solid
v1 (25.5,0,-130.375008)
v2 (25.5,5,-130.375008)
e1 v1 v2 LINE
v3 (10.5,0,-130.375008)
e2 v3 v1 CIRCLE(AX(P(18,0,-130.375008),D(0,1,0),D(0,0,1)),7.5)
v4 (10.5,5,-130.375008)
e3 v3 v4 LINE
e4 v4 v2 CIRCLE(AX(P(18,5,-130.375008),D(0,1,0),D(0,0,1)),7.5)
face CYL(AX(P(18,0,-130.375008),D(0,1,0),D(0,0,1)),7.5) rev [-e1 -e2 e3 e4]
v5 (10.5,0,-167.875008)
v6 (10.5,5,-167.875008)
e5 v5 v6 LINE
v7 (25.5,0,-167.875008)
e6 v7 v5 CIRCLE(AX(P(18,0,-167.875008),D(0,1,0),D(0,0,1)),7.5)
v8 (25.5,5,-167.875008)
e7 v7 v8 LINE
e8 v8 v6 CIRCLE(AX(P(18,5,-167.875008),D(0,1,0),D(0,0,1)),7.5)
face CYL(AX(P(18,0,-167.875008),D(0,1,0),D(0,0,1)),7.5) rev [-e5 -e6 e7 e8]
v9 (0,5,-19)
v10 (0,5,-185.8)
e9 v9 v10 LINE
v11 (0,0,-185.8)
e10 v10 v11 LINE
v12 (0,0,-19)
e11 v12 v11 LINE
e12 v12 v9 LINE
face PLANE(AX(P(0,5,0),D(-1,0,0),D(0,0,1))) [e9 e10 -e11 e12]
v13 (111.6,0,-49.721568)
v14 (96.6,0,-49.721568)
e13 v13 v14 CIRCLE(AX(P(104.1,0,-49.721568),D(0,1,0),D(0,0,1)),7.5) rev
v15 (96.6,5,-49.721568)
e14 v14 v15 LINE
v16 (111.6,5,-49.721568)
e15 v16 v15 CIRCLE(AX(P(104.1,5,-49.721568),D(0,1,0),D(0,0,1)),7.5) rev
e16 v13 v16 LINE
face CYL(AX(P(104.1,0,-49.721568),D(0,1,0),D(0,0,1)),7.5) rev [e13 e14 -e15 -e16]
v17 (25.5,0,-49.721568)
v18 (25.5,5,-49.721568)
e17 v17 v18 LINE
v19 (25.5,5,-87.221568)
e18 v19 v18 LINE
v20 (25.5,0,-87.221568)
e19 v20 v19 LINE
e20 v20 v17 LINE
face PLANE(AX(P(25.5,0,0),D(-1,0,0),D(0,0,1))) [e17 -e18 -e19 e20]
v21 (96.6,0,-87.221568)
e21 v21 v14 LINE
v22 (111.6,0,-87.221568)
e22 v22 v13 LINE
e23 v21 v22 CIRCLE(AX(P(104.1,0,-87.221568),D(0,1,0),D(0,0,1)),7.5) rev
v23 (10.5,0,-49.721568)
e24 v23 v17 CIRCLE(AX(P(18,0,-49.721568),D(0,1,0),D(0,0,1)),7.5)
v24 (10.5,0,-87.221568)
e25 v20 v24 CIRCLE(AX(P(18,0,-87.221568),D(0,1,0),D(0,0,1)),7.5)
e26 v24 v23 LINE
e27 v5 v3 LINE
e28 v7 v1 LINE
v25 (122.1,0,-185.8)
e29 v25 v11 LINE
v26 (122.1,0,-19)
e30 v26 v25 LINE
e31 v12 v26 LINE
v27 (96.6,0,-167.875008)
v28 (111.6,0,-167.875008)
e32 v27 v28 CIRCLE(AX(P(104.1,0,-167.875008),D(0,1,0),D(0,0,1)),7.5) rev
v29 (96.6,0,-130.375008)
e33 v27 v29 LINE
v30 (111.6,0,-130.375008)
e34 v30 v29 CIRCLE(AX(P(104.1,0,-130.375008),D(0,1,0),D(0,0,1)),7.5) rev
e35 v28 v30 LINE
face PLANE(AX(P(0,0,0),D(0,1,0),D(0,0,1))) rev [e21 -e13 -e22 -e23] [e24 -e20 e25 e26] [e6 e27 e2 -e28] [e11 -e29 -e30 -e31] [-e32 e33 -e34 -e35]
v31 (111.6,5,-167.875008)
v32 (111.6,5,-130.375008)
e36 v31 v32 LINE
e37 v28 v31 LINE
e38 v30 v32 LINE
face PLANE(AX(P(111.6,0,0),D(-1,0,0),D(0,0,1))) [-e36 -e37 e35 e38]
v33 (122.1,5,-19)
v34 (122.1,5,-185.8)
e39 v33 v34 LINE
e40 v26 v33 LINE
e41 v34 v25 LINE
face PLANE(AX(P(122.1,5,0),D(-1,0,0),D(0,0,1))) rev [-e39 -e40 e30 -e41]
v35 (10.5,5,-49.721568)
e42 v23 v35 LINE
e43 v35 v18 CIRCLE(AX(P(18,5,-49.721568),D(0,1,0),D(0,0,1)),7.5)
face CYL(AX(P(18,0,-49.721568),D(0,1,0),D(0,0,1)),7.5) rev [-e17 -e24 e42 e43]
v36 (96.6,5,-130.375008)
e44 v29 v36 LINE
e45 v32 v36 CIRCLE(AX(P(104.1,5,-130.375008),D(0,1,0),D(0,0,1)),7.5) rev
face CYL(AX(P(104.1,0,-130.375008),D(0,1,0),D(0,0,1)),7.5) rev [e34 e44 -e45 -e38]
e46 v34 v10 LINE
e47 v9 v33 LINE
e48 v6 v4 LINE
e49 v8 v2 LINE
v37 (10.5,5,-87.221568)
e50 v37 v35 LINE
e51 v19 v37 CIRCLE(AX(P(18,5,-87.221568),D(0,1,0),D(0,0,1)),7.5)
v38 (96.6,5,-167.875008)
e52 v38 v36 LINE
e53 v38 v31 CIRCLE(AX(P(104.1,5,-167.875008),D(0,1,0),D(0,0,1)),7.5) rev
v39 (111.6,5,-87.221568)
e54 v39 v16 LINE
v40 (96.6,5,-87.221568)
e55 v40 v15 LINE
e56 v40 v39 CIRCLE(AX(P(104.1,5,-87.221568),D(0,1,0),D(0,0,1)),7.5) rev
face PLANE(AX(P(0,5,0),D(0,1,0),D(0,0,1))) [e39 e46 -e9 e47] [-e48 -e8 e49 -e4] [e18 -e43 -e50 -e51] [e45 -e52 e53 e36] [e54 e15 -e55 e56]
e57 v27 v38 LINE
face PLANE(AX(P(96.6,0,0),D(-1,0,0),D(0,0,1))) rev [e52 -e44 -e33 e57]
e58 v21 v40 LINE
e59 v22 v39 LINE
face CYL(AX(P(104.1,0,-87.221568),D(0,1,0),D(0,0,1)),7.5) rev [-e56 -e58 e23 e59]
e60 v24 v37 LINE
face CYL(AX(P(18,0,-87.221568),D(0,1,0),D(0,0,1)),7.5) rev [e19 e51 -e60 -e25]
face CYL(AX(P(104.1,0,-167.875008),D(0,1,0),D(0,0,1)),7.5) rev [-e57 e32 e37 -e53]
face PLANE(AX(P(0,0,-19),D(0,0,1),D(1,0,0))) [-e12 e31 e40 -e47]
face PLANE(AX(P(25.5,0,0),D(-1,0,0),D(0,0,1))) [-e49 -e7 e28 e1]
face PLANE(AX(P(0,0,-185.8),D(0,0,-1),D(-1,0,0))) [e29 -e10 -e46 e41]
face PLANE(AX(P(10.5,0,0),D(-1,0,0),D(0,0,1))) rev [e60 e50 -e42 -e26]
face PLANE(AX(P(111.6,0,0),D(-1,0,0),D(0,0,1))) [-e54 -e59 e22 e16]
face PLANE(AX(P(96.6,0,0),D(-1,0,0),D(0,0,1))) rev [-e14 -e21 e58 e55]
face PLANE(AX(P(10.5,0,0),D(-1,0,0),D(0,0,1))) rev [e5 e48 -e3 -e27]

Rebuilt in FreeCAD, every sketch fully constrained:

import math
import FreeCAD as App
import Part
import Sketcher

V = App.Vector
Q = App.Units.Quantity


def add_polygon(sketch, points):
    """Adds a closed chain of lines whose ends are joined by coincident constraints."""
    first, n = sketch.GeometryCount, len(points)
    for a, b in zip(points, points[1:] + points[:1]):
        sketch.addGeometry(Part.LineSegment(App.Vector(*a, 0), App.Vector(*b, 0)), False)
    for i in range(n):
        sketch.addConstraint(Sketcher.Constraint("Coincident", first + i, 2, first + (i + 1) % n, 1))

doc = App.newDocument("Part")
body = doc.addObject("PartDesign::Body", "Body")

# Sketch on XZ plane
sketch1 = doc.addObject("Sketcher::SketchObject", "Sketch")
body.addObject(sketch1)
sketch1.AttachmentSupport = (doc.XZ_Plane, [""])
sketch1.MapMode = "FlatFace"
add_polygon(sketch1, [(0, -197.8), (0, 0), (122.1, 0), (122.1, -197.8)])  # lines 0-3
sketch1.addConstraint(Sketcher.Constraint("Vertical", 0))
sketch1.addConstraint(Sketcher.Constraint("Horizontal", 1))
sketch1.addConstraint(Sketcher.Constraint("Vertical", 2))
sketch1.addConstraint(Sketcher.Constraint("Horizontal", 3))
sketch1.addConstraint(Sketcher.Constraint("Coincident", 0, 2, -1, 1))
sketch1.addConstraint(Sketcher.Constraint("DistanceX", 1, 1, 1, 2, Q("122.1 mm")))
sketch1.addConstraint(Sketcher.Constraint("DistanceY", 0, 1, 0, 2, Q("197.8 mm")))
pad1 = doc.addObject("PartDesign::Pad", "Pad")
body.addObject(pad1)
pad1.Profile = sketch1
pad1.Length = 5
pad1.Reversed = True

# Sketch on XZ plane
sketch2 = doc.addObject("Sketcher::SketchObject", "Sketch001")
body.addObject(sketch2)
sketch2.AttachmentSupport = (doc.XZ_Plane, [""])
sketch2.MapMode = "FlatFace"
sketch2.AttachmentOffset = App.Placement(V(0, 0, -5), App.Rotation())
sketch2.addGeometry(Part.LineSegment(V(10.5, -167.875008, 0), V(10.5, -130.375008, 0)), False)
sketch2.addGeometry(Part.ArcOfCircle(Part.Circle(V(18, -130.375008, 0), V(0, 0, 1), 7.5), math.radians(0), math.radians(180)), False)
sketch2.addGeometry(Part.LineSegment(V(25.5, -130.375008, 0), V(25.5, -167.875008, 0)), False)
sketch2.addGeometry(Part.ArcOfCircle(Part.Circle(V(18, -167.875008, 0), V(0, 0, 1), 7.5), math.radians(180), math.radians(360)), False)
sketch2.addGeometry(Part.ArcOfCircle(Part.Circle(V(104.1, -130.375008, 0), V(0, 0, 1), 7.5), math.radians(0), math.radians(180)), False)
sketch2.addGeometry(Part.LineSegment(V(111.6, -130.375008, 0), V(111.6, -167.875008, 0)), False)
sketch2.addGeometry(Part.ArcOfCircle(Part.Circle(V(104.1, -167.875008, 0), V(0, 0, 1), 7.5), math.radians(180), math.radians(360)), False)
sketch2.addGeometry(Part.LineSegment(V(96.6, -167.875008, 0), V(96.6, -130.375008, 0)), False)
sketch2.addGeometry(Part.ArcOfCircle(Part.Circle(V(104.1, -49.721568, 0), V(0, 0, 1), 7.5), math.radians(0), math.radians(180)), False)
sketch2.addGeometry(Part.LineSegment(V(111.6, -49.721568, 0), V(111.6, -87.221568, 0)), False)
sketch2.addGeometry(Part.ArcOfCircle(Part.Circle(V(104.1, -87.221568, 0), V(0, 0, 1), 7.5), math.radians(180), math.radians(360)), False)
sketch2.addGeometry(Part.LineSegment(V(96.6, -87.221568, 0), V(96.6, -49.721568, 0)), False)
sketch2.addGeometry(Part.LineSegment(V(10.5, -87.221568, 0), V(10.5, -49.721568, 0)), False)
sketch2.addGeometry(Part.ArcOfCircle(Part.Circle(V(18, -49.721568, 0), V(0, 0, 1), 7.5), math.radians(0), math.radians(180)), False)
sketch2.addGeometry(Part.LineSegment(V(25.5, -49.721568, 0), V(25.5, -87.221568, 0)), False)
sketch2.addGeometry(Part.ArcOfCircle(Part.Circle(V(18, -87.221568, 0), V(0, 0, 1), 7.5), math.radians(180), math.radians(360)), False)
sketch2.addConstraint(Sketcher.Constraint("Tangent", 0, 2, 1, 2))
sketch2.addConstraint(Sketcher.Constraint("Tangent", 1, 1, 2, 1))
sketch2.addConstraint(Sketcher.Constraint("Tangent", 2, 2, 3, 2))
sketch2.addConstraint(Sketcher.Constraint("Tangent", 3, 1, 0, 1))
sketch2.addConstraint(Sketcher.Constraint("Tangent", 4, 1, 5, 1))
sketch2.addConstraint(Sketcher.Constraint("Tangent", 5, 2, 6, 2))
sketch2.addConstraint(Sketcher.Constraint("Tangent", 6, 1, 7, 1))
sketch2.addConstraint(Sketcher.Constraint("Tangent", 7, 2, 4, 2))
sketch2.addConstraint(Sketcher.Constraint("Tangent", 8, 1, 9, 1))
sketch2.addConstraint(Sketcher.Constraint("Tangent", 9, 2, 10, 2))
sketch2.addConstraint(Sketcher.Constraint("Tangent", 10, 1, 11, 1))
sketch2.addConstraint(Sketcher.Constraint("Tangent", 11, 2, 8, 2))
sketch2.addConstraint(Sketcher.Constraint("Tangent", 12, 2, 13, 2))
sketch2.addConstraint(Sketcher.Constraint("Tangent", 13, 1, 14, 1))
sketch2.addConstraint(Sketcher.Constraint("Tangent", 14, 2, 15, 2))
sketch2.addConstraint(Sketcher.Constraint("Tangent", 15, 1, 12, 1))
sketch2.addConstraint(Sketcher.Constraint("Vertical", 0))
sketch2.addConstraint(Sketcher.Constraint("Vertical", 2))
sketch2.addConstraint(Sketcher.Constraint("Vertical", 5))
sketch2.addConstraint(Sketcher.Constraint("Vertical", 7))
sketch2.addConstraint(Sketcher.Constraint("Vertical", 9))
sketch2.addConstraint(Sketcher.Constraint("Vertical", 11))
sketch2.addConstraint(Sketcher.Constraint("Vertical", 12))
sketch2.addConstraint(Sketcher.Constraint("Vertical", 14))
sketch2.addConstraint(Sketcher.Constraint("Equal", 3, 4))
sketch2.addConstraint(Sketcher.Constraint("Equal", 6, 8))
sketch2.addConstraint(Sketcher.Constraint("Equal", 10, 13))
sketch2.addConstraint(Sketcher.Constraint("Horizontal", 1, 3, 4, 3))
sketch2.addConstraint(Sketcher.Constraint("Horizontal", 3, 3, 6, 3))
sketch2.addConstraint(Sketcher.Constraint("Horizontal", 8, 3, 13, 3))
sketch2.addConstraint(Sketcher.Constraint("Horizontal", 10, 3, 15, 3))
sketch2.addConstraint(Sketcher.Constraint("Vertical", 6, 3, 8, 3))
sketch2.addConstraint(Sketcher.Constraint("Vertical", 3, 3, 13, 3))
sketch2.addConstraint(Sketcher.Constraint("Equal", 7, 9))
sketch2.addConstraint(Sketcher.Constraint("Radius", 1, Q("7.5 mm")))
sketch2.addConstraint(Sketcher.Constraint("DistanceY", 0, 1, 0, 2, Q("37.5 mm")))
sketch2.addConstraint(Sketcher.Constraint("DistanceX", -1, 1, 1, 3, Q("18 mm")))
sketch2.addConstraint(Sketcher.Constraint("DistanceX", -1, 1, 4, 3, Q("104.1 mm")))
sketch2.addConstraint(Sketcher.Constraint("DistanceY", 8, 3, -1, 1, Q("49.721568 mm")))
sketch2.addConstraint(Sketcher.Constraint("DistanceY", 4, 3, 8, 3, Q("80.65344 mm")))
pocket1 = doc.addObject("PartDesign::Pocket", "Pocket")
body.addObject(pocket1)
pocket1.Profile = sketch2
pocket1.Length = 5
pocket1.Reversed = True

# Sketch on XY plane
sketch3 = doc.addObject("Sketcher::SketchObject", "Sketch002")
body.addObject(sketch3)
sketch3.AttachmentSupport = (doc.XY_Plane, [""])
sketch3.MapMode = "FlatFace"
sketch3.AttachmentOffset = App.Placement(V(0, 0, -197.8), App.Rotation())
add_polygon(sketch3, [(135.054576, 26.31456), (135.054576, -41.520135), (-41.638024, -41.520135), (-41.638024, 26.31456)])  # lines 0-3
sketch3.addConstraint(Sketcher.Constraint("Vertical", 0))
sketch3.addConstraint(Sketcher.Constraint("Horizontal", 1))
sketch3.addConstraint(Sketcher.Constraint("Vertical", 2))
sketch3.addConstraint(Sketcher.Constraint("Horizontal", 3))
sketch3.addConstraint(Sketcher.Constraint("DistanceX", 1, 2, 1, 1, Q("176.6926 mm")))
sketch3.addConstraint(Sketcher.Constraint("DistanceY", 0, 2, 0, 1, Q("67.834695 mm")))
sketch3.addConstraint(Sketcher.Constraint("DistanceY", -1, 1, 2, 2, Q("26.31456 mm")))
sketch3.addConstraint(Sketcher.Constraint("DistanceX", -1, 1, 0, 2, Q("135.054576 mm")))
pocket2 = doc.addObject("PartDesign::Pocket", "Pocket001")
body.addObject(pocket2)
pocket2.Profile = sketch3
pocket2.Length = 12
pocket2.Reversed = True

# Sketch on XY plane
sketch4 = doc.addObject("Sketcher::SketchObject", "Sketch003")
body.addObject(sketch4)
sketch4.AttachmentSupport = (doc.XY_Plane, [""])
sketch4.MapMode = "FlatFace"
add_polygon(sketch4, [(-6.195125, 32.859868), (-6.195125, -30.99889), (142.30823, -30.99889), (142.30823, 32.859868)])  # lines 0-3
sketch4.addConstraint(Sketcher.Constraint("Vertical", 0))
sketch4.addConstraint(Sketcher.Constraint("Horizontal", 1))
sketch4.addConstraint(Sketcher.Constraint("Vertical", 2))
sketch4.addConstraint(Sketcher.Constraint("Horizontal", 3))
sketch4.addConstraint(Sketcher.Constraint("DistanceX", 1, 1, 1, 2, Q("148.503355 mm")))
sketch4.addConstraint(Sketcher.Constraint("DistanceY", 0, 2, 0, 1, Q("63.858757 mm")))
sketch4.addConstraint(Sketcher.Constraint("DistanceY", 0, 2, -1, 1, Q("30.99889 mm")))
sketch4.addConstraint(Sketcher.Constraint("DistanceX", -1, 1, 1, 2, Q("142.30823 mm")))
pocket3 = doc.addObject("PartDesign::Pocket", "Pocket002")
body.addObject(pocket3)
pocket3.Profile = sketch4
pocket3.Length = 19

doc.recompute()
